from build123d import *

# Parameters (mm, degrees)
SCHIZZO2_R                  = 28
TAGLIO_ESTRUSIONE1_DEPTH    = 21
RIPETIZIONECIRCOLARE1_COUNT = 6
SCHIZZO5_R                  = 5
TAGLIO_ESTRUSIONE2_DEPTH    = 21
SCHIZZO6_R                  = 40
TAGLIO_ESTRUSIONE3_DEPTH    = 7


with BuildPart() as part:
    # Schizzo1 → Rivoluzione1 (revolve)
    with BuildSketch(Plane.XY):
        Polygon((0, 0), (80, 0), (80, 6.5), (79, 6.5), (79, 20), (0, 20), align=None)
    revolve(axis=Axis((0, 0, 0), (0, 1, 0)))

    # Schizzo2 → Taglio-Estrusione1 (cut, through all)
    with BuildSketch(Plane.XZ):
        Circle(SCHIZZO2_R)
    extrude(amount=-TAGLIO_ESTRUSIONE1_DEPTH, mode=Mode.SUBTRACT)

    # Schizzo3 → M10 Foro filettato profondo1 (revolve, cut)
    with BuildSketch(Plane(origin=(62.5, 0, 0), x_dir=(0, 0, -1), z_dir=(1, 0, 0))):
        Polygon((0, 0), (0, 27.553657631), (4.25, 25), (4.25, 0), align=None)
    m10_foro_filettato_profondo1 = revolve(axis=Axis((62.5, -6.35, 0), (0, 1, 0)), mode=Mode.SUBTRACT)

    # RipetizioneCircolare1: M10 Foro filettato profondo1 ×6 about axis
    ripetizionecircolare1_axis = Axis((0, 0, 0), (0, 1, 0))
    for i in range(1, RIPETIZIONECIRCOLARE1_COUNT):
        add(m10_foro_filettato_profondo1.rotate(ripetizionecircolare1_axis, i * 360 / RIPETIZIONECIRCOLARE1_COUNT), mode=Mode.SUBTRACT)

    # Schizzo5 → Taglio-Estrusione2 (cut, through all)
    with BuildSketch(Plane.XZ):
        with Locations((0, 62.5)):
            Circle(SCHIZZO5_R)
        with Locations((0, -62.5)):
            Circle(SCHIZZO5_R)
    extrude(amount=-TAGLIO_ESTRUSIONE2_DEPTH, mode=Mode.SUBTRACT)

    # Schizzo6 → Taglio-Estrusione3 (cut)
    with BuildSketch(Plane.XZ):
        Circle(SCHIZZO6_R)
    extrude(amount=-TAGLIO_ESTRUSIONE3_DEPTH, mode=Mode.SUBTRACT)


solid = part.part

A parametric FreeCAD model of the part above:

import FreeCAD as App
import Part
import Sketcher
Q = App.Units.Quantity


def add_polygon(sketch, points):
    """Adds a closed chain of lines whose ends are joined by coincident constraints."""
    first, n = sketch.GeometryCount, len(points)
    for a, b in zip(points, points[1:] + points[:1]):
        sketch.addGeometry(Part.LineSegment(App.Vector(*a, 0), App.Vector(*b, 0)), False)
    for i in range(n):
        sketch.addConstraint(Sketcher.Constraint("Coincident", first + i, 2, first + (i + 1) % n, 1))

doc = App.newDocument("Part")
params = doc.addObject("Spreadsheet::Sheet", "Params")
for row, (alias, value) in enumerate([
    ("sketch1_width", "80 mm"),
    ("sketch1_width2", "1 mm"),
    ("sketch1_height", "20 mm"),
    ("sketch1_height2", "6.5 mm"),
    ("revolution_angle", "360 deg"),
    ("sketch2_diameter", "56 mm"),
    ("sketch3_width", "25 mm"),
    ("sketch3_height", "4.25 mm"),
    ("groove_angle", "360 deg"),
    ("sketch4_diameter", "10 mm"),
    ("sketch5_diameter", "80 mm"),
    ("pocket3_length", "7 mm"),
], start=1):
    params.set(f"A{row}", alias)
    params.set(f"B{row}", "=" + value)
    params.setAlias(f"B{row}", alias)

body = doc.addObject("PartDesign::Body", "Body")

sketch1 = body.newObject("Sketcher::SketchObject", "Sketch")
sketch1.AttachmentSupport = (doc.getObject("XY_Plane"), [""])
sketch1.MapMode = "FlatFace"
add_polygon(sketch1, [(0, 0), (80, 0), (80, 6.5), (79, 6.5), (79, 20), (0, 20)])
sketch1.addConstraint(Sketcher.Constraint("Horizontal", 0))
sketch1.addConstraint(Sketcher.Constraint("Vertical", 1))
sketch1.addConstraint(Sketcher.Constraint("Horizontal", 2))
sketch1.addConstraint(Sketcher.Constraint("Vertical", 3))
sketch1.addConstraint(Sketcher.Constraint("Horizontal", 4))
sketch1.addConstraint(Sketcher.Constraint("Vertical", 5))
sketch1.addConstraint(Sketcher.Constraint("Coincident", 5, 2, -1, 1))
sketch1.addConstraint(Sketcher.Constraint("DistanceX", 0, 1, 0, 2, 80.0))
sketch1.addConstraint(Sketcher.Constraint("DistanceX", 2, 2, 2, 1, 1.0))
sketch1.addConstraint(Sketcher.Constraint("DistanceY", 5, 2, 5, 1, 20.0))
sketch1.addConstraint(Sketcher.Constraint("DistanceY", 1, 1, 1, 2, 6.5))
sketch1.setExpression("Constraints[13]", "Params.sketch1_width")
sketch1.setExpression("Constraints[14]", "Params.sketch1_width2")
sketch1.setExpression("Constraints[15]", "Params.sketch1_height")
sketch1.setExpression("Constraints[16]", "Params.sketch1_height2")
revolution = body.newObject("PartDesign::Revolution", "Revolution")
revolution.Profile = sketch1
revolution.ReferenceAxis = (sketch1, ["V_Axis"])
revolution.setExpression("Angle", "Params.revolution_angle")

sketch2 = body.newObject("Sketcher::SketchObject", "Sketch001")
sketch2.AttachmentSupport = (doc.getObject("XZ_Plane"), [""])
sketch2.MapMode = "FlatFace"
sketch2.addGeometry(Part.Circle(App.Vector(0, 0, 0), App.Vector(0, 0, 1), 28), False)
sketch2.addConstraint(Sketcher.Constraint("Coincident", 0, 3, -1, 1))
sketch2.addConstraint(Sketcher.Constraint("Diameter", 0, 56.0))
sketch2.setExpression("Constraints[1]", "Params.sketch2_diameter")
pocket1 = body.newObject("PartDesign::Pocket", "Pocket")
pocket1.Profile = sketch2
pocket1.Type = "ThroughAll"

sketch3 = body.newObject("Sketcher::SketchObject", "Sketch002")
sketch3.AttachmentSupport = (doc.getObject("YZ_Plane"), [""])
sketch3.MapMode = "FlatFace"
sketch3.AttachmentOffset = App.Placement(App.Vector(0, 0, 62.5), App.Rotation())
add_polygon(sketch3, [(27.6, 0), (0, 0), (0, -4.2), (25, -4.2)])
sketch3.addConstraint(Sketcher.Constraint("Horizontal", 0))
sketch3.addConstraint(Sketcher.Constraint("Vertical", 1))
sketch3.addConstraint(Sketcher.Constraint("Horizontal", 2))
sketch3.addConstraint(Sketcher.Constraint("Coincident", 0, 2, -1, 1))
sketch3.addConstraint(Sketcher.Constraint("DistanceX", 2, 1, 2, 2, 25.0))
sketch3.addConstraint(Sketcher.Constraint("Angle", 3, Q("59 deg")))
sketch3.addConstraint(Sketcher.Constraint("DistanceY", 1, 2, 1, 1, 4.25))
sketch3.setExpression("Constraints[8]", "Params.sketch3_width")
sketch3.setExpression("Constraints[10]", "Params.sketch3_height")
groove = body.newObject("PartDesign::Groove", "Groove")
groove.Profile = sketch3
groove.ReferenceAxis = (sketch3, ["H_Axis"])
groove.setExpression("Angle", "Params.groove_angle")
doc.recompute()

polarpattern = body.newObject("PartDesign::PolarPattern", "PolarPattern")
polarpattern.Originals = [groove]
polarpattern.Axis = (doc.getObject("Y_Axis"), [""])
polarpattern.Angle = 360
polarpattern.Occurrences = 6
body.Tip = polarpattern

sketch4 = body.newObject("Sketcher::SketchObject", "Sketch003")
sketch4.AttachmentSupport = (doc.getObject("XZ_Plane"), [""])
sketch4.MapMode = "FlatFace"
sketch4.addGeometry(Part.Circle(App.Vector(0, 62, 0), App.Vector(0, 0, 1), 5), False)
sketch4.addGeometry(Part.Circle(App.Vector(0, -62, 0), App.Vector(0, 0, 1), 5), False)
sketch4.addConstraint(Sketcher.Constraint("Equal", 0, 1))
sketch4.addConstraint(Sketcher.Constraint("Symmetric", 0, 3, 1, 3, -1, 1))
sketch4.addConstraint(Sketcher.Constraint("PointOnObject", 0, 3, -2))
sketch4.addConstraint(Sketcher.Constraint("Diameter", 0, 10.0))
sketch4.addConstraint(Sketcher.Constraint("DistanceY", 1, 3, 0, 3, 125.0))
sketch4.setExpression("Constraints[3]", "Params.sketch4_diameter")
pocket2 = body.newObject("PartDesign::Pocket", "Pocket001")
pocket2.Profile = sketch4
pocket2.Type = "ThroughAll"

sketch5 = body.newObject("Sketcher::SketchObject", "Sketch004")
sketch5.AttachmentSupport = (doc.getObject("XZ_Plane"), [""])
sketch5.MapMode = "FlatFace"
sketch5.addGeometry(Part.Circle(App.Vector(0, 0, 0), App.Vector(0, 0, 1), 40), False)
sketch5.addConstraint(Sketcher.Constraint("Coincident", 0, 3, -1, 1))
sketch5.addConstraint(Sketcher.Constraint("Diameter", 0, 80.0))
sketch5.setExpression("Constraints[1]", "Params.sketch5_diameter")
pocket3 = body.newObject("PartDesign::Pocket", "Pocket002")
pocket3.Profile = sketch5
pocket3.setExpression("Length", "Params.pocket3_length")

doc.recompute()
